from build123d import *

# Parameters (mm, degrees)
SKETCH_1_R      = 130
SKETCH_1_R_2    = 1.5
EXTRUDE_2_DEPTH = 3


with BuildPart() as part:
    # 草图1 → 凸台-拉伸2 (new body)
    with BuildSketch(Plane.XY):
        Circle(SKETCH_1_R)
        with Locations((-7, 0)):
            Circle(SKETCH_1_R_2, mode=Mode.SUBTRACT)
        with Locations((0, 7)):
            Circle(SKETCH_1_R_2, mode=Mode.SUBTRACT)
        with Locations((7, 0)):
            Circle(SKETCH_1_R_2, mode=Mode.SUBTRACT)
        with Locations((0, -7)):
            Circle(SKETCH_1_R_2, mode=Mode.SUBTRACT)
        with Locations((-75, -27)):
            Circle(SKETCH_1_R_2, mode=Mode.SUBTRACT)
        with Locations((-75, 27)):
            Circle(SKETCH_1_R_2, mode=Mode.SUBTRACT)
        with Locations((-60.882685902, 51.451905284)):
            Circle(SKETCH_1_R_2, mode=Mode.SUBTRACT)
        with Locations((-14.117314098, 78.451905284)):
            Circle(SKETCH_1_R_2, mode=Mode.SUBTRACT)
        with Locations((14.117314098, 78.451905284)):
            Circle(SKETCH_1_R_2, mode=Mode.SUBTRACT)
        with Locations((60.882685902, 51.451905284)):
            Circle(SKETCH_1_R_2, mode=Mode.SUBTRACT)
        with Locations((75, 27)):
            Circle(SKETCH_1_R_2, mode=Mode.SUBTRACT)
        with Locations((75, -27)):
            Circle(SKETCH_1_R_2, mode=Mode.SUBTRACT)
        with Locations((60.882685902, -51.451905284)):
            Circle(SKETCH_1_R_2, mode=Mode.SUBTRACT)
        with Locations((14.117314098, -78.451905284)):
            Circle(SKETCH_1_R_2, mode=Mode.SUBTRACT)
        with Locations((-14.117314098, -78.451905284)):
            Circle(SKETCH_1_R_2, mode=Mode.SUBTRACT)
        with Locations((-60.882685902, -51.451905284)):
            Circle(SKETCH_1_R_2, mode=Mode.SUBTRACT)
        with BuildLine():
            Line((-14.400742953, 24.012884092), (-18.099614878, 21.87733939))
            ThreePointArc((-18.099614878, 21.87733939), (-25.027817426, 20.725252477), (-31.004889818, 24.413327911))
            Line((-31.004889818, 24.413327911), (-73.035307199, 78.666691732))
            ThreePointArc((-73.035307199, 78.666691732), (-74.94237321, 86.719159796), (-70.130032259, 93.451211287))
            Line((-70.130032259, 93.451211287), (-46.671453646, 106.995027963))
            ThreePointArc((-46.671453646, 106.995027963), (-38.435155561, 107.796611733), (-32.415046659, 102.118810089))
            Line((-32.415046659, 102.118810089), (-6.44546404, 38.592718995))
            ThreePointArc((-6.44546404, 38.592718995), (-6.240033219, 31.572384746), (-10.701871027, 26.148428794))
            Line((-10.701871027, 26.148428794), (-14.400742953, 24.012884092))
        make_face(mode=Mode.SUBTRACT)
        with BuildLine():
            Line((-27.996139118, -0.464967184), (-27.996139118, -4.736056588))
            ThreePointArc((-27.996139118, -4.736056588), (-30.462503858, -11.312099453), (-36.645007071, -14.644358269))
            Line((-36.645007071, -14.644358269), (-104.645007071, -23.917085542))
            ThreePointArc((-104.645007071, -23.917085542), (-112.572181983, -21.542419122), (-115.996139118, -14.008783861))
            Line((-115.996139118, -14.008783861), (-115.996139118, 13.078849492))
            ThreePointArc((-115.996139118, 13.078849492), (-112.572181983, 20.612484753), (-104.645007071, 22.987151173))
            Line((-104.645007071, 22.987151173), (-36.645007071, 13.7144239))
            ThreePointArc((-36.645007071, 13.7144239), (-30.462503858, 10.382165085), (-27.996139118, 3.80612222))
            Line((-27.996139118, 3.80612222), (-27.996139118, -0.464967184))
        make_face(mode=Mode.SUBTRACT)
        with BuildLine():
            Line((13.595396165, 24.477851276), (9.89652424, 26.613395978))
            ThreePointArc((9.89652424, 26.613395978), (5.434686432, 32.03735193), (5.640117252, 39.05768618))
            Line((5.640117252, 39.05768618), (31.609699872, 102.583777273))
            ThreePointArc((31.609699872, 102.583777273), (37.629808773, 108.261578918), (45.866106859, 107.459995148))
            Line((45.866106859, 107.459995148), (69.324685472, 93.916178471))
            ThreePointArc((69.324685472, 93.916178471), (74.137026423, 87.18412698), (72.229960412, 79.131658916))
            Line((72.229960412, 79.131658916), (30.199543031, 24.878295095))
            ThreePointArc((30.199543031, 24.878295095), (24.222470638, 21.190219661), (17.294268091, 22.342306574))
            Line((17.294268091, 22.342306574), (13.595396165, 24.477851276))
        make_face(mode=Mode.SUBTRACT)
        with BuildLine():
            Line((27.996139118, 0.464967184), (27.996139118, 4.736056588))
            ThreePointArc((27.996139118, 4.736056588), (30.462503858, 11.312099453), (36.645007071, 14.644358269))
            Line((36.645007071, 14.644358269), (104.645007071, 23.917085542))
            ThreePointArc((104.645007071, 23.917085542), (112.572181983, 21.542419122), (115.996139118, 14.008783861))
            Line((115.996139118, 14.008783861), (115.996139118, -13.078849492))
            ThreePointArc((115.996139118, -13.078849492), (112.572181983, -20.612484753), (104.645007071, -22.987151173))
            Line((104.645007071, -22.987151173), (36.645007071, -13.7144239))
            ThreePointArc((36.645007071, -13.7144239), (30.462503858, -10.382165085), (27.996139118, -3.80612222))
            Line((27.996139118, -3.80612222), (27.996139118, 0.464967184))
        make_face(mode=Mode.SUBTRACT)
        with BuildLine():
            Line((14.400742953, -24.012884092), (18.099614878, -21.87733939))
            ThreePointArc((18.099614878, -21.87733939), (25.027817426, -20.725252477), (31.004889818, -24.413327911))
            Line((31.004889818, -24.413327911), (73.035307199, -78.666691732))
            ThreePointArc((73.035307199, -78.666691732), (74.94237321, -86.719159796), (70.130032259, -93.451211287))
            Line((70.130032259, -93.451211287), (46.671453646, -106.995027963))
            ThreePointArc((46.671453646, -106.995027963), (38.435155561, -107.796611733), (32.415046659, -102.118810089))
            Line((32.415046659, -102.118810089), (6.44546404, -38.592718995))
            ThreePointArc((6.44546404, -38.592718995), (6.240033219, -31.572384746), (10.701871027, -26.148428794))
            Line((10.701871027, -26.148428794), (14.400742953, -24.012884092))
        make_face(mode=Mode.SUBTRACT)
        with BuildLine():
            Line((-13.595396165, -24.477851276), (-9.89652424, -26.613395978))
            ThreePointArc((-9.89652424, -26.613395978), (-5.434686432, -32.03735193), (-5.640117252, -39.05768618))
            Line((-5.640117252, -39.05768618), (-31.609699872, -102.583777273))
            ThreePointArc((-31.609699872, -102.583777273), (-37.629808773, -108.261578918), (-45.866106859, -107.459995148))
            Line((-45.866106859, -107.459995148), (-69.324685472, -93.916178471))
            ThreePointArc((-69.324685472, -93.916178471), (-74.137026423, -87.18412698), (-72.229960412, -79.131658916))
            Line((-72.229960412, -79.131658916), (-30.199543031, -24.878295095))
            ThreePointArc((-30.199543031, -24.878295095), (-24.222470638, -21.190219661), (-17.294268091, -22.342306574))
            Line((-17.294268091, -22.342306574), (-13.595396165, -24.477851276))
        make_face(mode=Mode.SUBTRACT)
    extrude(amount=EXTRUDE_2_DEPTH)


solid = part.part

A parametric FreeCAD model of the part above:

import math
import FreeCAD as App
import Part
import Sketcher
Q = App.Units.Quantity

doc = App.newDocument("Part")
body = doc.addObject("PartDesign::Body", "Body")

# Sketch on XY plane
sketch1 = body.newObject("Sketcher::SketchObject", "Sketch")
sketch1.AttachmentSupport = (doc.getObject("XY_Plane"), [""])
sketch1.MapMode = "FlatFace"
sketch1.addGeometry([
    Part.Circle(App.Vector(0, 0, 0), App.Vector(0, 0, 1), 130),  # 0
    Part.LineSegment(App.Vector(-17.294268, -22.342307, 0), App.Vector(-13.595396, -24.477851, 0)),  # 1
    Part.LineSegment(App.Vector(-13.595396, -24.477851, 0), App.Vector(-9.896524, -26.613396, 0)),  # 2
    Part.ArcOfCircle(Part.Circle(App.Vector(-14.896524, -35.27365, 0), App.Vector(0, 0, 1), 10), math.radians(-22.234834), math.radians(60)),  # 3
    Part.LineSegment(App.Vector(-5.640117, -39.057686, 0), App.Vector(-31.6097, -102.583777, 0)),  # 4
    Part.ArcOfCircle(Part.Circle(App.Vector(-40.866107, -98.799741, 0), App.Vector(0, 0, 1), 10), math.radians(-120), math.radians(-22.234834)),  # 5
    Part.LineSegment(App.Vector(-45.866107, -107.459995, 0), App.Vector(-69.324685, -93.916178, 0)),  # 6
    Part.ArcOfCircle(Part.Circle(App.Vector(-64.324685, -85.255924, 0), App.Vector(0, 0, 1), 10), math.radians(142.234834), math.radians(240)),  # 7
    Part.LineSegment(App.Vector(-72.22996, -79.131659, 0), App.Vector(-30.199543, -24.878295, 0)),  # 8
    Part.ArcOfCircle(Part.Circle(App.Vector(-22.294268, -31.002561, 0), App.Vector(0, 0, 1), 10), math.radians(60), math.radians(142.234834)),  # 9
    Part.Circle(App.Vector(-14.117314, -78.451905, 0), App.Vector(0, 0, 1), 1.5),  # 10
    Part.Circle(App.Vector(-60.882686, -51.451905, 0), App.Vector(0, 0, 1), 1.5),  # 11
    Part.Circle(App.Vector(-75, -27, 0), App.Vector(0, 0, 1), 1.5),  # 12
    Part.LineSegment(App.Vector(-27.996139, 3.806122, 0), App.Vector(-27.996139, -4.736057, 0)),  # 13
    Part.ArcOfCircle(Part.Circle(App.Vector(-37.996139, -4.736057, 0), App.Vector(0, 0, 1), 10), math.radians(-82.234834), math.radians(0)),  # 14
    Part.LineSegment(App.Vector(-36.645007, -14.644358, 0), App.Vector(-104.645007, -23.917086, 0)),  # 15
    Part.ArcOfCircle(Part.Circle(App.Vector(-105.996139, -14.008784, 0), App.Vector(0, 0, 1), 10), math.radians(180), math.radians(277.765166)),  # 16
    Part.LineSegment(App.Vector(-115.996139, -14.008784, 0), App.Vector(-115.996139, 13.078849, 0)),  # 17
    Part.ArcOfCircle(Part.Circle(App.Vector(-105.996139, 13.078849, 0), App.Vector(0, 0, 1), 10), math.radians(82.234834), math.radians(180)),  # 18
    Part.LineSegment(App.Vector(-104.645007, 22.987151, 0), App.Vector(-36.645007, 13.714424, 0)),  # 19
    Part.ArcOfCircle(Part.Circle(App.Vector(-37.996139, 3.806122, 0), App.Vector(0, 0, 1), 10), math.radians(0), math.radians(82.234834)),  # 20
    Part.Circle(App.Vector(14.117314, -78.451905, 0), App.Vector(0, 0, 1), 1.5),  # 21
    Part.LineSegment(App.Vector(10.701871, -26.148429, 0), App.Vector(14.400743, -24.012884, 0)),  # 22
    Part.LineSegment(App.Vector(14.400743, -24.012884, 0), App.Vector(18.099615, -21.877339, 0)),  # 23
    Part.ArcOfCircle(Part.Circle(App.Vector(23.099615, -30.537593, 0), App.Vector(0, 0, 1), 10), math.radians(37.765166), math.radians(120)),  # 24
    Part.LineSegment(App.Vector(31.00489, -24.413328, 0), App.Vector(73.035307, -78.666692, 0)),  # 25
    Part.ArcOfCircle(Part.Circle(App.Vector(65.130032, -84.790957, 0), App.Vector(0, 0, 1), 10), math.radians(-60), math.radians(37.765166)),  # 26
    Part.LineSegment(App.Vector(70.130032, -93.451211, 0), App.Vector(46.671454, -106.995028, 0)),  # 27
    Part.ArcOfCircle(Part.Circle(App.Vector(41.671454, -98.334774, 0), App.Vector(0, 0, 1), 10), math.radians(-157.765166), math.radians(-60)),  # 28
    Part.LineSegment(App.Vector(32.415047, -102.11881, 0), App.Vector(6.445464, -38.592719, 0)),  # 29
    Part.ArcOfCircle(Part.Circle(App.Vector(15.701871, -34.808683, 0), App.Vector(0, 0, 1), 10), math.radians(120), math.radians(202.234834)),  # 30
    Part.Circle(App.Vector(0, -7, 0), App.Vector(0, 0, 1), 1.5),  # 31
    Part.Circle(App.Vector(60.882686, -51.451905, 0), App.Vector(0, 0, 1), 1.5),  # 32
    Part.Circle(App.Vector(75, -27, 0), App.Vector(0, 0, 1), 1.5),  # 33
    Part.Circle(App.Vector(-75, 27, 0), App.Vector(0, 0, 1), 1.5),  # 34
    Part.Circle(App.Vector(-60.882686, 51.451905, 0), App.Vector(0, 0, 1), 1.5),  # 35
    Part.Circle(App.Vector(-7, 0, 0), App.Vector(0, 0, 1), 1.5),  # 36
    Part.LineSegment(App.Vector(-10.701871, 26.148429, 0), App.Vector(-14.400743, 24.012884, 0)),  # 37
    Part.LineSegment(App.Vector(-14.400743, 24.012884, 0), App.Vector(-18.099615, 21.877339, 0)),  # 38
    Part.ArcOfCircle(Part.Circle(App.Vector(-23.099615, 30.537593, 0), App.Vector(0, 0, 1), 10), math.radians(-142.234834), math.radians(-60)),  # 39
    Part.LineSegment(App.Vector(-31.00489, 24.413328, 0), App.Vector(-73.035307, 78.666692, 0)),  # 40
    Part.ArcOfCircle(Part.Circle(App.Vector(-65.130032, 84.790957, 0), App.Vector(0, 0, 1), 10), math.radians(120), math.radians(217.765166)),  # 41
    Part.LineSegment(App.Vector(-70.130032, 93.451211, 0), App.Vector(-46.671454, 106.995028, 0)),  # 42
    Part.ArcOfCircle(Part.Circle(App.Vector(-41.671454, 98.334774, 0), App.Vector(0, 0, 1), 10), math.radians(22.234834), math.radians(120)),  # 43
    Part.LineSegment(App.Vector(-32.415047, 102.11881, 0), App.Vector(-6.445464, 38.592719, 0)),  # 44
    Part.ArcOfCircle(Part.Circle(App.Vector(-15.701871, 34.808683, 0), App.Vector(0, 0, 1), 10), math.radians(-60), math.radians(22.234834)),  # 45
    Part.Circle(App.Vector(-14.117314, 78.451905, 0), App.Vector(0, 0, 1), 1.5),  # 46
    Part.Circle(App.Vector(7, 0, 0), App.Vector(0, 0, 1), 1.5),  # 47
    Part.Circle(App.Vector(0, 7, 0), App.Vector(0, 0, 1), 1.5),  # 48
    Part.LineSegment(App.Vector(27.996139, -3.806122, 0), App.Vector(27.996139, 4.736057, 0)),  # 49
    Part.ArcOfCircle(Part.Circle(App.Vector(37.996139, 4.736057, 0), App.Vector(0, 0, 1), 10), math.radians(97.765166), math.radians(180)),  # 50
    Part.LineSegment(App.Vector(36.645007, 14.644358, 0), App.Vector(104.645007, 23.917086, 0)),  # 51
    Part.ArcOfCircle(Part.Circle(App.Vector(105.996139, 14.008784, 0), App.Vector(0, 0, 1), 10), math.radians(0), math.radians(97.765166)),  # 52
    Part.LineSegment(App.Vector(115.996139, 14.008784, 0), App.Vector(115.996139, -13.078849, 0)),  # 53
    Part.ArcOfCircle(Part.Circle(App.Vector(105.996139, -13.078849, 0), App.Vector(0, 0, 1), 10), math.radians(-97.765166), math.radians(0)),  # 54
    Part.LineSegment(App.Vector(104.645007, -22.987151, 0), App.Vector(36.645007, -13.714424, 0)),  # 55
    Part.ArcOfCircle(Part.Circle(App.Vector(37.996139, -3.806122, 0), App.Vector(0, 0, 1), 10), math.radians(-180), math.radians(-97.765166)),  # 56
    Part.Circle(App.Vector(75, 27, 0), App.Vector(0, 0, 1), 1.5),  # 57
    Part.Circle(App.Vector(60.882686, 51.451905, 0), App.Vector(0, 0, 1), 1.5),  # 58
    Part.Circle(App.Vector(14.117314, 78.451905, 0), App.Vector(0, 0, 1), 1.5),  # 59
    Part.LineSegment(App.Vector(17.294268, 22.342307, 0), App.Vector(13.595396, 24.477851, 0)),  # 60
    Part.LineSegment(App.Vector(13.595396, 24.477851, 0), App.Vector(9.896524, 26.613396, 0)),  # 61
    Part.ArcOfCircle(Part.Circle(App.Vector(14.896524, 35.27365, 0), App.Vector(0, 0, 1), 10), math.radians(157.765166), math.radians(240)),  # 62
    Part.LineSegment(App.Vector(5.640117, 39.057686, 0), App.Vector(31.6097, 102.583777, 0)),  # 63
    Part.ArcOfCircle(Part.Circle(App.Vector(40.866107, 98.799741, 0), App.Vector(0, 0, 1), 10), math.radians(60), math.radians(157.765166)),  # 64
    Part.LineSegment(App.Vector(45.866107, 107.459995, 0), App.Vector(69.324685, 93.916178, 0)),  # 65
    Part.ArcOfCircle(Part.Circle(App.Vector(64.324685, 85.255924, 0), App.Vector(0, 0, 1), 10), math.radians(-37.765166), math.radians(60)),  # 66
    Part.LineSegment(App.Vector(72.22996, 79.131659, 0), App.Vector(30.199543, 24.878295, 0)),  # 67
    Part.ArcOfCircle(Part.Circle(App.Vector(22.294268, 31.002561, 0), App.Vector(0, 0, 1), 10), math.radians(-120), math.radians(-37.765166)),  # 68
], False)
sketch1.addConstraint([
    Sketcher.Constraint("Coincident", 1, 2, 2, 1),
    Sketcher.Constraint("Tangent", 2, 2, 3, 2),
    Sketcher.Constraint("Tangent", 3, 1, 4, 1),
    Sketcher.Constraint("Tangent", 4, 2, 5, 2),
    Sketcher.Constraint("Tangent", 5, 1, 6, 1),
    Sketcher.Constraint("Tangent", 6, 2, 7, 2),
    Sketcher.Constraint("Tangent", 7, 1, 8, 1),
    Sketcher.Constraint("Tangent", 8, 2, 9, 2),
    Sketcher.Constraint("Tangent", 9, 1, 1, 1),
    Sketcher.Constraint("Tangent", 13, 2, 14, 2),
    Sketcher.Constraint("Tangent", 14, 1, 15, 1),
    Sketcher.Constraint("Tangent", 15, 2, 16, 2),
    Sketcher.Constraint("Tangent", 16, 1, 17, 1),
    Sketcher.Constraint("Tangent", 17, 2, 18, 2),
    Sketcher.Constraint("Tangent", 18, 1, 19, 1),
    Sketcher.Constraint("Tangent", 19, 2, 20, 2),
    Sketcher.Constraint("Tangent", 20, 1, 13, 1),
    Sketcher.Constraint("Coincident", 22, 2, 23, 1),
    Sketcher.Constraint("Tangent", 23, 2, 24, 2),
    Sketcher.Constraint("Tangent", 24, 1, 25, 1),
    Sketcher.Constraint("Tangent", 25, 2, 26, 2),
    Sketcher.Constraint("Tangent", 26, 1, 27, 1),
    Sketcher.Constraint("Tangent", 27, 2, 28, 2),
    Sketcher.Constraint("Tangent", 28, 1, 29, 1),
    Sketcher.Constraint("Tangent", 29, 2, 30, 2),
    Sketcher.Constraint("Tangent", 30, 1, 22, 1),
    Sketcher.Constraint("Coincident", 37, 2, 38, 1),
    Sketcher.Constraint("Tangent", 38, 2, 39, 2),
    Sketcher.Constraint("Tangent", 39, 1, 40, 1),
    Sketcher.Constraint("Tangent", 40, 2, 41, 2),
    Sketcher.Constraint("Tangent", 41, 1, 42, 1),
    Sketcher.Constraint("Tangent", 42, 2, 43, 2),
    Sketcher.Constraint("Tangent", 43, 1, 44, 1),
    Sketcher.Constraint("Tangent", 44, 2, 45, 2),
    Sketcher.Constraint("Tangent", 45, 1, 37, 1),
    Sketcher.Constraint("Tangent", 49, 2, 50, 2),
    Sketcher.Constraint("Tangent", 50, 1, 51, 1),
    Sketcher.Constraint("Tangent", 51, 2, 52, 2),
    Sketcher.Constraint("Tangent", 52, 1, 53, 1),
    Sketcher.Constraint("Tangent", 53, 2, 54, 2),
    Sketcher.Constraint("Tangent", 54, 1, 55, 1),
    Sketcher.Constraint("Tangent", 55, 2, 56, 2),
    Sketcher.Constraint("Tangent", 56, 1, 49, 1),
    Sketcher.Constraint("Coincident", 60, 2, 61, 1),
    Sketcher.Constraint("Tangent", 61, 2, 62, 2),
    Sketcher.Constraint("Tangent", 62, 1, 63, 1),
    Sketcher.Constraint("Tangent", 63, 2, 64, 2),
    Sketcher.Constraint("Tangent", 64, 1, 65, 1),
    Sketcher.Constraint("Tangent", 65, 2, 66, 2),
    Sketcher.Constraint("Tangent", 66, 1, 67, 1),
    Sketcher.Constraint("Tangent", 67, 2, 68, 2),
    Sketcher.Constraint("Tangent", 68, 1, 60, 1),
    Sketcher.Constraint("Vertical", 13),
    Sketcher.Constraint("Vertical", 17),
    Sketcher.Constraint("Vertical", 49),
    Sketcher.Constraint("Vertical", 53),
    Sketcher.Constraint("Coincident", 0, 3, -1, 1),
    Sketcher.Constraint("Equal", 3, 5),
    Sketcher.Constraint("Equal", 5, 7),
    Sketcher.Constraint("Equal", 7, 9),
    Sketcher.Constraint("Equal", 10, 11),
    Sketcher.Constraint("Equal", 11, 12),
    Sketcher.Constraint("Equal", 9, 14),
    Sketcher.Constraint("Equal", 14, 16),
    Sketcher.Constraint("Equal", 16, 18),
    Sketcher.Constraint("Equal", 18, 20),
    Sketcher.Constraint("Equal", 12, 21),
    Sketcher.Constraint("Equal", 20, 24),
    Sketcher.Constraint("Equal", 24, 26),
    Sketcher.Constraint("Equal", 26, 28),
    Sketcher.Constraint("Equal", 28, 30),
    Sketcher.Constraint("Equal", 21, 31),
    Sketcher.Constraint("Equal", 31, 32),
    Sketcher.Constraint("Equal", 32, 33),
    Sketcher.Constraint("Equal", 33, 34),
    Sketcher.Constraint("Equal", 34, 35),
    Sketcher.Constraint("Equal", 35, 36),
    Sketcher.Constraint("Equal", 30, 39),
    Sketcher.Constraint("Equal", 39, 41),
    Sketcher.Constraint("Equal", 41, 43),
    Sketcher.Constraint("Equal", 43, 45),
    Sketcher.Constraint("Equal", 36, 46),
    Sketcher.Constraint("Equal", 46, 47),
    Sketcher.Constraint("Equal", 47, 48),
    Sketcher.Constraint("Equal", 45, 50),
    Sketcher.Constraint("Equal", 50, 52),
    Sketcher.Constraint("Equal", 52, 54),
    Sketcher.Constraint("Equal", 54, 56),
    Sketcher.Constraint("Equal", 48, 57),
    Sketcher.Constraint("Equal", 57, 58),
    Sketcher.Constraint("Equal", 58, 59),
    Sketcher.Constraint("Equal", 56, 62),
    Sketcher.Constraint("Equal", 62, 64),
    Sketcher.Constraint("Equal", 64, 66),
    Sketcher.Constraint("Equal", 66, 68),
    Sketcher.Constraint("Symmetric", 33, 3, 34, 3, -1, 1),
    Sketcher.Constraint("Symmetric", 32, 3, 35, 3, -1, 1),
    Sketcher.Constraint("Symmetric", 24, 3, 39, 3, -1, 1),
    Sketcher.Constraint("Symmetric", 26, 3, 41, 3, -1, 1),
    Sketcher.Constraint("Symmetric", 28, 3, 43, 3, -1, 1),
    Sketcher.Constraint("Symmetric", 30, 3, 45, 3, -1, 1),
    Sketcher.Constraint("Symmetric", 21, 3, 46, 3, -1, 1),
    Sketcher.Constraint("Symmetric", 36, 3, 47, 3, -1, 1),
    Sketcher.Constraint("Symmetric", 31, 3, 48, 3, -1, 1),
    Sketcher.Constraint("Symmetric", 14, 3, 50, 3, -1, 1),
    Sketcher.Constraint("Symmetric", 16, 3, 52, 3, -1, 1),
    Sketcher.Constraint("Symmetric", 12, 3, 57, 3, -1, 1),
    Sketcher.Constraint("Symmetric", 11, 3, 58, 3, -1, 1),
    Sketcher.Constraint("Symmetric", 10, 3, 59, 3, -1, 1),
    Sketcher.Constraint("Symmetric", 3, 3, 62, 3, -1, 1),
    Sketcher.Constraint("Symmetric", 5, 3, 64, 3, -1, 1),
    Sketcher.Constraint("Symmetric", 7, 3, 66, 3, -1, 1),
    Sketcher.Constraint("Symmetric", 9, 3, 68, 3, -1, 1),
    Sketcher.Constraint("Symmetric", 22, 2, 37, 2, -1, 1),
    Sketcher.Constraint("Symmetric", 18, 1, 54, 1, -1, 1),
    Sketcher.Constraint("Symmetric", 1, 2, 60, 2, -1, 1),
    Sketcher.Constraint("Symmetric", 10, 3, 21, 3, -2),
    Sketcher.Constraint("Symmetric", 11, 3, 32, 3, -2),
    Sketcher.Constraint("Symmetric", 12, 3, 33, 3, -2),
    Sketcher.Constraint("PointOnObject", 31, 3, -2),
    Sketcher.Constraint("PointOnObject", 36, 3, -1),
    Sketcher.Constraint("Parallel", 1, 2),
    Sketcher.Constraint("Parallel", 2, 6),
    Sketcher.Constraint("Parallel", 22, 23),
    Sketcher.Constraint("Parallel", 23, 27),
    Sketcher.Constraint("Vertical", 15, 2, 18, 1),
    Sketcher.Constraint("Equal", 1, 2),
    Sketcher.Constraint("Equal", 4, 8),
    Sketcher.Constraint("Equal", 8, 15),
    Sketcher.Constraint("Equal", 2, 22),
    Sketcher.Constraint("Equal", 22, 23),
    Sketcher.Constraint("Equal", 19, 25),
    Sketcher.Constraint("Equal", 6, 27),
    Sketcher.Constraint("Equal", 25, 29),
    Sketcher.Constraint("Diameter", 0, 260.0),
    Sketcher.Constraint("Diameter", 10, 3.0),
    Sketcher.Constraint("Radius", 3, 10.0),
    Sketcher.Constraint("Angle", 1, Q("-30 deg")),
    Sketcher.Constraint("Angle", 22, Q("30 deg")),
    Sketcher.Constraint("DistanceX", 12, 3, -1, 1, 75.0),
    Sketcher.Constraint("DistanceY", 12, 3, -1, 1, 27.0),
    Sketcher.Constraint("DistanceY", 31, 3, -1, 1, 7.0),
    Sketcher.Constraint("DistanceX", 36, 3, -1, 1, 7.0),
    Sketcher.Constraint("DistanceY", 13, 2, 13, 1, 8.542179),
    Sketcher.Constraint("DistanceX", 4, 2, -1, 1, 31.6097),
    Sketcher.Constraint("Distance", 1, 4.271089),
    Sketcher.Constraint("Distance", 4, 68.629319),
    Sketcher.Constraint("DistanceY", 17, 1, 17, 2, 27.087633),
    Sketcher.Constraint("DistanceY", 3, 3, -1, 1, 35.27365),
    Sketcher.Constraint("DistanceY", 5, 3, -1, 1, 98.799741),
    Sketcher.Constraint("DistanceX", 14, 3, -1, 1, 37.996139),
    Sketcher.Constraint("DistanceY", -1, 1, 18, 3, 13.078849),
    Sketcher.Constraint("DistanceX", -1, 1, 30, 3, 15.701871),
    Sketcher.Constraint("DistanceY", 23, 2, -1, 1, 21.877339),
    Sketcher.Constraint("DistanceX", 10, 3, -1, 1, 14.117314),
    Sketcher.Constraint("DistanceY", 10, 3, -1, 1, 78.451905),
    Sketcher.Constraint("DistanceX", 11, 3, -1, 1, 60.882686),
    Sketcher.Constraint("DistanceY", 11, 3, -1, 1, 51.451905),
])
pad1 = body.newObject("PartDesign::Pad", "Pad")
pad1.Profile = sketch1
pad1.Length = 3

doc.recompute()
